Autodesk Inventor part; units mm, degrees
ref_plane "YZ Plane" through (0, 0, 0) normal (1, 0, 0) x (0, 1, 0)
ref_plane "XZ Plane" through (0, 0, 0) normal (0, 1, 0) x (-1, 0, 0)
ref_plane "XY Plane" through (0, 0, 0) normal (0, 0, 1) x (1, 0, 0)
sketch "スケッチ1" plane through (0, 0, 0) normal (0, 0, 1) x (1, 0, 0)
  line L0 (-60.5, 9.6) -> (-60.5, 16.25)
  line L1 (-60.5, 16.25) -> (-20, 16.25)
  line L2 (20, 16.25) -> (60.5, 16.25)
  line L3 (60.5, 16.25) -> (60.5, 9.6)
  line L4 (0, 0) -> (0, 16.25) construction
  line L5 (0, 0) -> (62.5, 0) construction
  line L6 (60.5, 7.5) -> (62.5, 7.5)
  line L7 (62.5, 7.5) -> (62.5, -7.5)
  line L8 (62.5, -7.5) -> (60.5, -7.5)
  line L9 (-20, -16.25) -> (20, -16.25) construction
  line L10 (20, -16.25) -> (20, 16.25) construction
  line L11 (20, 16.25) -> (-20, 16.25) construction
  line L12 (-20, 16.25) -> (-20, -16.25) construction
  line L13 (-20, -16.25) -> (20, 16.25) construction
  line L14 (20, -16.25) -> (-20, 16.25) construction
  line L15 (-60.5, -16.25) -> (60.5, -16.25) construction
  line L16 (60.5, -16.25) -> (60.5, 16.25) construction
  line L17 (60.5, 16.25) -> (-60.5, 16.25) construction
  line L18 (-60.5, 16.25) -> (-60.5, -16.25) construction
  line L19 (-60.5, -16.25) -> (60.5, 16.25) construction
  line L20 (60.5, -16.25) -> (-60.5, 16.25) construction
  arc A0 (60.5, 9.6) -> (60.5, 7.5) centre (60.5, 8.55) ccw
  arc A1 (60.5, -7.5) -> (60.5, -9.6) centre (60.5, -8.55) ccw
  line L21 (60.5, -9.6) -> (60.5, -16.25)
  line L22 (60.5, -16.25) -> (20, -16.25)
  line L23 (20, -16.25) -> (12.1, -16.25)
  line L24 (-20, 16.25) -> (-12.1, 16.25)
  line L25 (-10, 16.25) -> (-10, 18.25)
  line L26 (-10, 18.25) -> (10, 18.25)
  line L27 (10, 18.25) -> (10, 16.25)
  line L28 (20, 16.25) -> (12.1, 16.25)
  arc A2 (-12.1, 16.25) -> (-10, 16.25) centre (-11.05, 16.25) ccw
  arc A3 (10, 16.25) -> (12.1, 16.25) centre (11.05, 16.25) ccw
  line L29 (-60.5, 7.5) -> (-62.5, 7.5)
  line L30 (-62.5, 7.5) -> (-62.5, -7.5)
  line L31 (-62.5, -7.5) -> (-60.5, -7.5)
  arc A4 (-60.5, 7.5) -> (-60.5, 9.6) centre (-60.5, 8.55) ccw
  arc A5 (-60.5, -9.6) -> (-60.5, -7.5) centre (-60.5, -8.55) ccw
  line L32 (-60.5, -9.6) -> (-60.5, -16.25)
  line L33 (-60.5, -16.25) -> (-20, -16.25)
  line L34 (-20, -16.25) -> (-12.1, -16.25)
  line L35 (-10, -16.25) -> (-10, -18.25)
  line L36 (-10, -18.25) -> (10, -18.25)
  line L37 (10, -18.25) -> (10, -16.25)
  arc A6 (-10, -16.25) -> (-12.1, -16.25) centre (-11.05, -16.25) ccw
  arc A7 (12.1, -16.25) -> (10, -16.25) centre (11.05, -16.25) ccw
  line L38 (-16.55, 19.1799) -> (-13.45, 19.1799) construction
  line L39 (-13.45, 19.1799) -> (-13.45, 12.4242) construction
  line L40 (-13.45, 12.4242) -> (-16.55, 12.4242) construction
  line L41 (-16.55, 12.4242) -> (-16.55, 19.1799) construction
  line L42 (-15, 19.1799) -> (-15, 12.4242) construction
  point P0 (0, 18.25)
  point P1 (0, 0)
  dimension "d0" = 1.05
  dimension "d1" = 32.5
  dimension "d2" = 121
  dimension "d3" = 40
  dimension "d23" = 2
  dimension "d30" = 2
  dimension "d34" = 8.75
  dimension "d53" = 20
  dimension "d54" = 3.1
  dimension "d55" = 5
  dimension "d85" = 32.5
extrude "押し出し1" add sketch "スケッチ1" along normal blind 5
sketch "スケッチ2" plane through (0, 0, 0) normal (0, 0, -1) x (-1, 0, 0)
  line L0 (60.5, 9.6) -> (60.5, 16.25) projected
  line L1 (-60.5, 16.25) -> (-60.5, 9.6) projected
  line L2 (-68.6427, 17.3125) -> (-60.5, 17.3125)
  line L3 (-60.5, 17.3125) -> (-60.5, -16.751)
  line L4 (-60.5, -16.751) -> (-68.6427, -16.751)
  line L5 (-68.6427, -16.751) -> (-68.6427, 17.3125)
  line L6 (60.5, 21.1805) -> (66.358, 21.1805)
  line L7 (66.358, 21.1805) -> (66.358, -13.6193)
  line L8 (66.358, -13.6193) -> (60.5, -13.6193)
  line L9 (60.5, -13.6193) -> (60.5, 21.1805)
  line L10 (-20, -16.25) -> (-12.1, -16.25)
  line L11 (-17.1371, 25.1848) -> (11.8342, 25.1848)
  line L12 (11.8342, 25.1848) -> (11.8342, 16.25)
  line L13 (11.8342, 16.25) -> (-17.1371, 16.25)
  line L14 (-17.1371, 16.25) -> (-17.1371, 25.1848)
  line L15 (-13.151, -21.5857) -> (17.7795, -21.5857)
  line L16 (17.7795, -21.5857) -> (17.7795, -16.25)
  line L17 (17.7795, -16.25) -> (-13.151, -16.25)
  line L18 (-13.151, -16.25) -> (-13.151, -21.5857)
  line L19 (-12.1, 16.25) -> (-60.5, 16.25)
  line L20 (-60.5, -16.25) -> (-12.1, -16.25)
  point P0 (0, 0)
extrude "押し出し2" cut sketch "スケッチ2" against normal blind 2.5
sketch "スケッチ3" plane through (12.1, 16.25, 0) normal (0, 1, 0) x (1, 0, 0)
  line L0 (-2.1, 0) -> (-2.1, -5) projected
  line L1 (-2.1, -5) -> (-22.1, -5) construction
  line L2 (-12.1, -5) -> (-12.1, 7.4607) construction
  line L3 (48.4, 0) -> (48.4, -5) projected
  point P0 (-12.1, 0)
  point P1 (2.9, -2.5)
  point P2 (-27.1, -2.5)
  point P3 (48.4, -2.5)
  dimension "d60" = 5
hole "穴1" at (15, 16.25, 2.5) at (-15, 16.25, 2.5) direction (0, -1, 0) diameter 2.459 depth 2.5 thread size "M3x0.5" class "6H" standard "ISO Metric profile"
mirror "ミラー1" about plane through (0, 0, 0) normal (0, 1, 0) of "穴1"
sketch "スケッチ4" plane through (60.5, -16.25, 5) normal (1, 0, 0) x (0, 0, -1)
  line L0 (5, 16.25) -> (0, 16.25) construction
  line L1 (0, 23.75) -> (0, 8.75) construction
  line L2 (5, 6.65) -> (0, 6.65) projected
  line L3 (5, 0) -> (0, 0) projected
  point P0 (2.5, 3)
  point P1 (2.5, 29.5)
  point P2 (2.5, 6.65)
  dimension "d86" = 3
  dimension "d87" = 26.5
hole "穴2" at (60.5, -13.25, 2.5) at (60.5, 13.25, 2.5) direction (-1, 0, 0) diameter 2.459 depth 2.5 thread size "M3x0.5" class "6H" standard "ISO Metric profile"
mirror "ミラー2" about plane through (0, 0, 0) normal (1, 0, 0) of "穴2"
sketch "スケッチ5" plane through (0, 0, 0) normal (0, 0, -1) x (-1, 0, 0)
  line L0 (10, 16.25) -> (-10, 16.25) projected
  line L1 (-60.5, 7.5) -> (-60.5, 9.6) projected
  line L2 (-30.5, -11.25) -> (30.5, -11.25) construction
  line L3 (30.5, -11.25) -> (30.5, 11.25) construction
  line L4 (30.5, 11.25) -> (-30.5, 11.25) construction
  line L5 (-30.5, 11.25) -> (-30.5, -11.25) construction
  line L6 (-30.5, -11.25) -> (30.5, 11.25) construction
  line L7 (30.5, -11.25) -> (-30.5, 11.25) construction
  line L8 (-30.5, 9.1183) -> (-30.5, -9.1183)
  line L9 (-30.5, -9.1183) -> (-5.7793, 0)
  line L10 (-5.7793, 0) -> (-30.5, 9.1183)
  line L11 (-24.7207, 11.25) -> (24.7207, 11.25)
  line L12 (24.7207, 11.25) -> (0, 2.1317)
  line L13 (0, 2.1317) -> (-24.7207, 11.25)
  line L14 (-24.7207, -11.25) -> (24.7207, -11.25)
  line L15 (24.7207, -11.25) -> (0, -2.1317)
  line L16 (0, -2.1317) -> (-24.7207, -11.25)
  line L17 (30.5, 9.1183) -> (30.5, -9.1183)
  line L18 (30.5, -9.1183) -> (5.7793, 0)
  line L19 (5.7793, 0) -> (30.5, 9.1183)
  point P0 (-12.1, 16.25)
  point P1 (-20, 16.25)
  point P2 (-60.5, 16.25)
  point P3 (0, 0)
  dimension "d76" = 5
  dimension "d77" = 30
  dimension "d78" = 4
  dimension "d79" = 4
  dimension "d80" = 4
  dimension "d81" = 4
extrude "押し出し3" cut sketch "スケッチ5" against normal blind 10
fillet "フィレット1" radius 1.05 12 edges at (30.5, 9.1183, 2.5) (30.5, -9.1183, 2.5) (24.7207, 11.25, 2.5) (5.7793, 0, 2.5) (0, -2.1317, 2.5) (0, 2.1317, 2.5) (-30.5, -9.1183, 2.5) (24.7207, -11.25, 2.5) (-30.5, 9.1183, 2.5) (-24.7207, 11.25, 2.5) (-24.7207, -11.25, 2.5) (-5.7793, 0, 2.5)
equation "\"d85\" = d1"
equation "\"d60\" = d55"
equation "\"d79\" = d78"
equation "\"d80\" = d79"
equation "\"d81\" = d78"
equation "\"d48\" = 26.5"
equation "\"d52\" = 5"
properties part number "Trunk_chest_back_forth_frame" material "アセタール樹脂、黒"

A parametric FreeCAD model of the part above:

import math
import FreeCAD as App
import Part
import Sketcher
Q = App.Units.Quantity


def edges_at(feature, points):
    """Names of the edges that pass closest to the given points."""
    edges = feature.Shape.Edges
    near = lambda p: min(range(len(edges)), key=lambda i: edges[i].distToShape(Part.Vertex(*p))[0])
    return sorted({f"Edge{near(p) + 1}" for p in points})

doc = App.newDocument("Part")
body = doc.addObject("PartDesign::Body", "Body")

# Sketch on XY plane
sketch1 = body.newObject("Sketcher::SketchObject", "Sketch")
sketch1.AttachmentSupport = (doc.getObject("XY_Plane"), [""])
sketch1.MapMode = "FlatFace"
sketch1.addGeometry([
    Part.LineSegment(App.Vector(-60.5, 16.2, 0), App.Vector(-60.5, 9.6, 0)),  # 0
    Part.ArcOfCircle(Part.Circle(App.Vector(-60.5, 8.6, 0), App.Vector(0, 0, 1), 1.1), math.radians(-90), math.radians(90)),  # 1
    Part.LineSegment(App.Vector(-60.5, 7.5, 0), App.Vector(-62.5, 7.5, 0)),  # 2
    Part.LineSegment(App.Vector(-62.5, 7.5, 0), App.Vector(-62.5, -7.5, 0)),  # 3
    Part.LineSegment(App.Vector(-62.5, -7.5, 0), App.Vector(-60.5, -7.5, 0)),  # 4
    Part.ArcOfCircle(Part.Circle(App.Vector(-60.5, -8.6, 0), App.Vector(0, 0, 1), 1), math.radians(-90), math.radians(90)),  # 5
    Part.LineSegment(App.Vector(-60.5, -9.6, 0), App.Vector(-60.5, -16.2, 0)),  # 6
    Part.LineSegment(App.Vector(-60.5, -16.2, 0), App.Vector(-12.1, -16.2, 0)),  # 7
    Part.ArcOfCircle(Part.Circle(App.Vector(-11.1, -16.2, 0), App.Vector(0, 0, 1), 1.1), math.radians(0), math.radians(180)),  # 8
    Part.LineSegment(App.Vector(-10, -16.2, 0), App.Vector(-10, -18.2, 0)),  # 9
    Part.LineSegment(App.Vector(-10, -18.2, 0), App.Vector(10, -18.2, 0)),  # 10
    Part.LineSegment(App.Vector(10, -18.2, 0), App.Vector(10, -16.2, 0)),  # 11
    Part.ArcOfCircle(Part.Circle(App.Vector(11.1, -16.2, 0), App.Vector(0, 0, 1), 1), math.radians(0), math.radians(180)),  # 12
    Part.LineSegment(App.Vector(12.1, -16.2, 0), App.Vector(60.5, -16.2, 0)),  # 13
    Part.LineSegment(App.Vector(60.5, -16.2, 0), App.Vector(60.5, -9.6, 0)),  # 14
    Part.ArcOfCircle(Part.Circle(App.Vector(60.5, -8.6, 0), App.Vector(0, 0, 1), 1.1), math.radians(90), math.radians(270)),  # 15
    Part.LineSegment(App.Vector(60.5, -7.5, 0), App.Vector(62.5, -7.5, 0)),  # 16
    Part.LineSegment(App.Vector(62.5, -7.5, 0), App.Vector(62.5, 7.5, 0)),  # 17
    Part.LineSegment(App.Vector(62.5, 7.5, 0), App.Vector(60.5, 7.5, 0)),  # 18
    Part.ArcOfCircle(Part.Circle(App.Vector(60.5, 8.6, 0), App.Vector(0, 0, 1), 1), math.radians(90), math.radians(270)),  # 19
    Part.LineSegment(App.Vector(60.5, 9.6, 0), App.Vector(60.5, 16.2, 0)),  # 20
    Part.LineSegment(App.Vector(60.5, 16.2, 0), App.Vector(12.1, 16.2, 0)),  # 21
    Part.ArcOfCircle(Part.Circle(App.Vector(11.1, 16.2, 0), App.Vector(0, 0, 1), 1.1), math.radians(180), math.radians(360)),  # 22
    Part.LineSegment(App.Vector(10, 16.2, 0), App.Vector(10, 18.2, 0)),  # 23
    Part.LineSegment(App.Vector(10, 18.2, 0), App.Vector(-10, 18.2, 0)),  # 24
    Part.LineSegment(App.Vector(-10, 18.2, 0), App.Vector(-10, 16.2, 0)),  # 25
    Part.ArcOfCircle(Part.Circle(App.Vector(-11.1, 16.2, 0), App.Vector(0, 0, 1), 1), math.radians(180), math.radians(360)),  # 26
    Part.LineSegment(App.Vector(-12.1, 16.2, 0), App.Vector(-60.5, 16.2, 0)),  # 27
], False)
sketch1.addConstraint([
    Sketcher.Constraint("Coincident", 0, 2, 1, 2),
    Sketcher.Constraint("Tangent", 1, 1, 2, 1),
    Sketcher.Constraint("Coincident", 2, 2, 3, 1),
    Sketcher.Constraint("Coincident", 3, 2, 4, 1),
    Sketcher.Constraint("Tangent", 4, 2, 5, 2),
    Sketcher.Constraint("Coincident", 5, 1, 6, 1),
    Sketcher.Constraint("Coincident", 6, 2, 7, 1),
    Sketcher.Constraint("Coincident", 7, 2, 8, 2),
    Sketcher.Constraint("Tangent", 8, 1, 9, 1),
    Sketcher.Constraint("Coincident", 9, 2, 10, 1),
    Sketcher.Constraint("Coincident", 10, 2, 11, 1),
    Sketcher.Constraint("Tangent", 11, 2, 12, 2),
    Sketcher.Constraint("Coincident", 12, 1, 13, 1),
    Sketcher.Constraint("Coincident", 13, 2, 14, 1),
    Sketcher.Constraint("Coincident", 14, 2, 15, 2),
    Sketcher.Constraint("Tangent", 15, 1, 16, 1),
    Sketcher.Constraint("Coincident", 16, 2, 17, 1),
    Sketcher.Constraint("Coincident", 17, 2, 18, 1),
    Sketcher.Constraint("Tangent", 18, 2, 19, 2),
    Sketcher.Constraint("Coincident", 19, 1, 20, 1),
    Sketcher.Constraint("Coincident", 20, 2, 21, 1),
    Sketcher.Constraint("Coincident", 21, 2, 22, 2),
    Sketcher.Constraint("Tangent", 22, 1, 23, 1),
    Sketcher.Constraint("Coincident", 23, 2, 24, 1),
    Sketcher.Constraint("Coincident", 24, 2, 25, 1),
    Sketcher.Constraint("Tangent", 25, 2, 26, 2),
    Sketcher.Constraint("Coincident", 26, 1, 27, 1),
    Sketcher.Constraint("Coincident", 27, 2, 0, 1),
    Sketcher.Constraint("Vertical", 0),
    Sketcher.Constraint("Horizontal", 2),
    Sketcher.Constraint("Vertical", 3),
    Sketcher.Constraint("Horizontal", 4),
    Sketcher.Constraint("Vertical", 6),
    Sketcher.Constraint("Horizontal", 7),
    Sketcher.Constraint("Vertical", 9),
    Sketcher.Constraint("Horizontal", 10),
    Sketcher.Constraint("Vertical", 11),
    Sketcher.Constraint("Horizontal", 13),
    Sketcher.Constraint("Vertical", 14),
    Sketcher.Constraint("Horizontal", 16),
    Sketcher.Constraint("Vertical", 17),
    Sketcher.Constraint("Horizontal", 18),
    Sketcher.Constraint("Vertical", 20),
    Sketcher.Constraint("Horizontal", 21),
    Sketcher.Constraint("Vertical", 23),
    Sketcher.Constraint("Horizontal", 24),
    Sketcher.Constraint("Vertical", 25),
    Sketcher.Constraint("Horizontal", 27),
    Sketcher.Constraint("Equal", 1, 5),
    Sketcher.Constraint("Equal", 5, 8),
    Sketcher.Constraint("Equal", 8, 12),
    Sketcher.Constraint("Equal", 12, 15),
    Sketcher.Constraint("Equal", 15, 19),
    Sketcher.Constraint("Equal", 19, 22),
    Sketcher.Constraint("Equal", 22, 26),
    Sketcher.Constraint("Symmetric", 1, 3, 15, 3, -1, 1),
    Sketcher.Constraint("Symmetric", 5, 3, 19, 3, -1, 1),
    Sketcher.Constraint("Symmetric", 8, 3, 22, 3, -1, 1),
    Sketcher.Constraint("Symmetric", 12, 3, 26, 3, -1, 1),
    Sketcher.Constraint("Symmetric", 6, 2, 20, 2, -1, 1),
    Sketcher.Constraint("Symmetric", 13, 2, 27, 2, -1, 1),
    Sketcher.Constraint("Symmetric", 8, 3, 12, 3, -2),
    Sketcher.Constraint("Symmetric", 5, 3, 15, 3, -2),
    Sketcher.Constraint("Symmetric", 6, 2, 13, 2, -2),
    Sketcher.Constraint("Horizontal", 12, 3, 6, 2),
    Sketcher.Constraint("Vertical", 5, 3, 0, 2),
    Sketcher.Constraint("Equal", 4, 16),
    Sketcher.Constraint("Equal", 18, 9),
    Sketcher.Constraint("Equal", 11, 23),
    Sketcher.Constraint("DistanceX", 2, 2, 2, 1, Q("2 mm")),
    Sketcher.Constraint("DistanceX", 10, 1, 10, 2, Q("20 mm")),
    Sketcher.Constraint("Radius", 1, Q("1.05 mm")),
    Sketcher.Constraint("DistanceX", 5, 3, 15, 3, Q("121 mm")),
    Sketcher.Constraint("DistanceY", 12, 3, 22, 3, Q("32.5 mm")),
    Sketcher.Constraint("DistanceY", 3, 2, 3, 1, Q("15 mm")),
])
pad1 = body.newObject("PartDesign::Pad", "Pad")
pad1.Profile = sketch1
pad1.Length = 5

# Sketch on XY plane
sketch2 = body.newObject("Sketcher::SketchObject", "Sketch001")
sketch2.AttachmentSupport = (doc.getObject("XY_Plane"), [""])
sketch2.MapMode = "FlatFace"
sketch2.addGeometry([
    Part.LineSegment(App.Vector(-60, 21, 0), App.Vector(-60, -14, 0)),  # 0
    Part.LineSegment(App.Vector(-60, -14, 0), App.Vector(-66, -14, 0)),  # 1
    Part.LineSegment(App.Vector(-66, -14, 0), App.Vector(-66, 21, 0)),  # 2
    Part.LineSegment(App.Vector(-66, 21, 0), App.Vector(-60, 21, 0)),  # 3
    Part.LineSegment(App.Vector(-18, -16, 0), App.Vector(13, -16, 0)),  # 4
    Part.LineSegment(App.Vector(13, -16, 0), App.Vector(13, -22, 0)),  # 5
    Part.LineSegment(App.Vector(13, -22, 0), App.Vector(-18, -22, 0)),  # 6
    Part.LineSegment(App.Vector(-18, -22, 0), App.Vector(-18, -16, 0)),  # 7
    Part.LineSegment(App.Vector(60, -17, 0), App.Vector(60, 17, 0)),  # 8
    Part.LineSegment(App.Vector(60, 17, 0), App.Vector(69, 17, 0)),  # 9
    Part.LineSegment(App.Vector(69, 17, 0), App.Vector(69, -17, 0)),  # 10
    Part.LineSegment(App.Vector(69, -17, 0), App.Vector(60, -17, 0)),  # 11
    Part.LineSegment(App.Vector(17, 25, 0), App.Vector(17, 16, 0)),  # 12
    Part.LineSegment(App.Vector(17, 16, 0), App.Vector(-12, 16, 0)),  # 13
    Part.LineSegment(App.Vector(-12, 16, 0), App.Vector(-12, 25, 0)),  # 14
    Part.LineSegment(App.Vector(-12, 25, 0), App.Vector(17, 25, 0)),  # 15
], False)
sketch2.addConstraint([
    Sketcher.Constraint("Coincident", 0, 2, 1, 1),
    Sketcher.Constraint("Coincident", 1, 2, 2, 1),
    Sketcher.Constraint("Coincident", 2, 2, 3, 1),
    Sketcher.Constraint("Coincident", 3, 2, 0, 1),
    Sketcher.Constraint("Coincident", 4, 2, 5, 1),
    Sketcher.Constraint("Coincident", 5, 2, 6, 1),
    Sketcher.Constraint("Coincident", 6, 2, 7, 1),
    Sketcher.Constraint("Coincident", 7, 2, 4, 1),
    Sketcher.Constraint("Coincident", 8, 2, 9, 1),
    Sketcher.Constraint("Coincident", 9, 2, 10, 1),
    Sketcher.Constraint("Coincident", 10, 2, 11, 1),
    Sketcher.Constraint("Coincident", 11, 2, 8, 1),
    Sketcher.Constraint("Coincident", 12, 2, 13, 1),
    Sketcher.Constraint("Coincident", 13, 2, 14, 1),
    Sketcher.Constraint("Coincident", 14, 2, 15, 1),
    Sketcher.Constraint("Coincident", 15, 2, 12, 1),
    Sketcher.Constraint("Vertical", 0),
    Sketcher.Constraint("Horizontal", 1),
    Sketcher.Constraint("Vertical", 2),
    Sketcher.Constraint("Horizontal", 3),
    Sketcher.Constraint("Horizontal", 4),
    Sketcher.Constraint("Vertical", 5),
    Sketcher.Constraint("Horizontal", 6),
    Sketcher.Constraint("Vertical", 7),
    Sketcher.Constraint("Vertical", 8),
    Sketcher.Constraint("Horizontal", 9),
    Sketcher.Constraint("Vertical", 10),
    Sketcher.Constraint("Horizontal", 11),
    Sketcher.Constraint("Vertical", 12),
    Sketcher.Constraint("Horizontal", 13),
    Sketcher.Constraint("Vertical", 14),
    Sketcher.Constraint("Horizontal", 15),
    Sketcher.Constraint("DistanceX", 3, 2, 8, 2, Q("121 mm")),
    Sketcher.Constraint("DistanceX", 0, 2, -1, 1, Q("60.5 mm")),
    Sketcher.Constraint("DistanceY", 4, 2, 12, 2, Q("32.5 mm")),
    Sketcher.Constraint("DistanceX", 1, 2, 1, 1, Q("5.858 mm")),
    Sketcher.Constraint("DistanceY", 4, 2, -1, 1, Q("16.25 mm")),
    Sketcher.Constraint("DistanceX", 4, 1, 4, 2, Q("30.9305 mm")),
    Sketcher.Constraint("DistanceX", 9, 1, 9, 2, Q("8.1427 mm")),
    Sketcher.Constraint("DistanceX", 13, 2, 13, 1, Q("28.9713 mm")),
    Sketcher.Constraint("DistanceY", 0, 2, 0, 1, Q("34.7998 mm")),
    Sketcher.Constraint("DistanceY", 5, 2, 5, 1, Q("5.3357 mm")),
    Sketcher.Constraint("DistanceY", 8, 1, 8, 2, Q("34.0635 mm")),
    Sketcher.Constraint("DistanceY", 12, 2, 12, 1, Q("8.9348 mm")),
    Sketcher.Constraint("DistanceX", -1, 1, 4, 2, Q("13.151 mm")),
    Sketcher.Constraint("DistanceY", 10, 2, -1, 1, Q("16.751 mm")),
    Sketcher.Constraint("DistanceX", -1, 1, 12, 2, Q("17.137 mm")),
    Sketcher.Constraint("DistanceY", 8, 2, 3, 2, Q("3.868 mm")),
])
pocket1 = body.newObject("PartDesign::Pocket", "Pocket")
pocket1.Profile = sketch2
pocket1.Length = 2.5
pocket1.Reversed = True

# Sketch on XZ plane
sketch3 = body.newObject("Sketcher::SketchObject", "Sketch002")
sketch3.AttachmentSupport = (doc.getObject("XZ_Plane"), [""])
sketch3.MapMode = "FlatFace"
sketch3.AttachmentOffset = App.Placement(App.Vector(0, 0, -16.25), App.Rotation())
sketch3.addGeometry([
    Part.Circle(App.Vector(15, 2.5, 0), App.Vector(0, 0, 1), 1.2),
    Part.Circle(App.Vector(-15, 2.5, 0), App.Vector(0, 0, 1), 1.2),
], False)
sketch3.addConstraint([
    Sketcher.Constraint("Equal", 0, 1),
    Sketcher.Constraint("Symmetric", 0, 3, 1, 3, -2),
    Sketcher.Constraint("Diameter", 0, Q("2.459 mm")),
    Sketcher.Constraint("DistanceX", -1, 1, 0, 3, Q("15 mm")),
    Sketcher.Constraint("DistanceY", -1, 1, 0, 3, Q("2.5 mm")),
])
doc.recompute()
hole = body.newObject("PartDesign::Hole", "Hole")
hole.Profile = sketch3
hole.ThreadType = "None"
hole.Diameter = 2.459
hole.DepthType = "Dimension"
hole.Depth = 2.5
hole.DrillPoint = "Flat"
hole.Reversed = True
doc.recompute()

mirrored = body.newObject("PartDesign::Mirrored", "Mirrored")
mirrored.Originals = [hole]
mirrored.MirrorPlane = (doc.getObject("XZ_Plane"), [""])
body.Tip = mirrored

# Sketch on YZ plane
sketch4 = body.newObject("Sketcher::SketchObject", "Sketch003")
sketch4.AttachmentSupport = (doc.getObject("YZ_Plane"), [""])
sketch4.MapMode = "FlatFace"
sketch4.AttachmentOffset = App.Placement(App.Vector(0, 0, 60.5), App.Rotation())
sketch4.addGeometry([
    Part.Circle(App.Vector(-13.2, 2.5, 0), App.Vector(0, 0, 1), 1.2),
    Part.Circle(App.Vector(13.2, 2.5, 0), App.Vector(0, 0, 1), 1.2),
], False)
sketch4.addConstraint([
    Sketcher.Constraint("Equal", 0, 1),
    Sketcher.Constraint("Symmetric", 0, 3, 1, 3, -2),
    Sketcher.Constraint("Diameter", 0, Q("2.459 mm")),
    Sketcher.Constraint("DistanceY", -1, 1, 0, 3, Q("2.5 mm")),
    Sketcher.Constraint("DistanceX", 0, 3, 1, 3, Q("26.5 mm")),
])
doc.recompute()
hole2 = body.newObject("PartDesign::Hole", "Hole001")
hole2.Profile = sketch4
hole2.ThreadType = "None"
hole2.Diameter = 2.459
hole2.DepthType = "Dimension"
hole2.Depth = 2.5
hole2.DrillPoint = "Flat"
doc.recompute()

mirrored2 = body.newObject("PartDesign::Mirrored", "Mirrored001")
mirrored2.Originals = [hole2]
mirrored2.MirrorPlane = (doc.getObject("YZ_Plane"), [""])
body.Tip = mirrored2

# Sketch on XY plane
sketch5 = body.newObject("Sketcher::SketchObject", "Sketch004")
sketch5.AttachmentSupport = (doc.getObject("XY_Plane"), [""])
sketch5.MapMode = "FlatFace"
sketch5.addGeometry([
    Part.LineSegment(App.Vector(6, 0, 0), App.Vector(30, 9, 0)),  # 0
    Part.LineSegment(App.Vector(30, 9, 0), App.Vector(30, -9, 0)),  # 1
    Part.LineSegment(App.Vector(30, -9, 0), App.Vector(6, 0, 0)),  # 2
    Part.LineSegment(App.Vector(-25, 11, 0), App.Vector(25, 11, 0)),  # 3
    Part.LineSegment(App.Vector(25, 11, 0), App.Vector(0, 2, 0)),  # 4
    Part.LineSegment(App.Vector(0, 2, 0), App.Vector(-25, 11, 0)),  # 5
    Part.LineSegment(App.Vector(0, -2, 0), App.Vector(25, -11, 0)),  # 6
    Part.LineSegment(App.Vector(25, -11, 0), App.Vector(-25, -11, 0)),  # 7
    Part.LineSegment(App.Vector(-25, -11, 0), App.Vector(0, -2, 0)),  # 8
    Part.LineSegment(App.Vector(-30, -9, 0), App.Vector(-30, 9, 0)),  # 9
    Part.LineSegment(App.Vector(-30, 9, 0), App.Vector(-6, 0, 0)),  # 10
    Part.LineSegment(App.Vector(-6, 0, 0), App.Vector(-30, -9, 0)),  # 11
], False)
sketch5.addConstraint([
    Sketcher.Constraint("Coincident", 0, 2, 1, 1),
    Sketcher.Constraint("Coincident", 1, 2, 2, 1),
    Sketcher.Constraint("Coincident", 2, 2, 0, 1),
    Sketcher.Constraint("Coincident", 3, 2, 4, 1),
    Sketcher.Constraint("Coincident", 4, 2, 5, 1),
    Sketcher.Constraint("Coincident", 5, 2, 3, 1),
    Sketcher.Constraint("Coincident", 6, 2, 7, 1),
    Sketcher.Constraint("Coincident", 7, 2, 8, 1),
    Sketcher.Constraint("Coincident", 8, 2, 6, 1),
    Sketcher.Constraint("Coincident", 9, 2, 10, 1),
    Sketcher.Constraint("Coincident", 10, 2, 11, 1),
    Sketcher.Constraint("Coincident", 11, 2, 9, 1),
    Sketcher.Constraint("Vertical", 1),
    Sketcher.Constraint("Horizontal", 3),
    Sketcher.Constraint("Horizontal", 7),
    Sketcher.Constraint("Vertical", 9),
    Sketcher.Constraint("Symmetric", 5, 2, 6, 2, -1, 1),
    Sketcher.Constraint("Symmetric", 4, 2, 8, 2, -1, 1),
    Sketcher.Constraint("Symmetric", 1, 2, 9, 2, -1, 1),
    Sketcher.Constraint("Symmetric", 2, 2, 10, 2, -1, 1),
    Sketcher.Constraint("PointOnObject", 2, 2, -1),
    Sketcher.Constraint("PointOnObject", 4, 2, -2),
    Sketcher.Constraint("Parallel", 0, 4),
    Sketcher.Constraint("Parallel", 2, 5),
    Sketcher.Constraint("Parallel", 4, 8),
    Sketcher.Constraint("Parallel", 8, 11),
    Sketcher.Constraint("Horizontal", 0, 2, 9, 2),
    Sketcher.Constraint("Equal", 2, 4),
    Sketcher.Constraint("DistanceX", -1, 1, 0, 2, Q("30.5 mm")),
    Sketcher.Constraint("DistanceY", 6, 2, 3, 2, Q("22.5 mm")),
    Sketcher.Constraint("DistanceX", 3, 1, 3, 2, Q("49.4414 mm")),
    Sketcher.Constraint("DistanceY", 1, 2, 1, 1, Q("18.2366 mm")),
])
pocket2 = body.newObject("PartDesign::Pocket", "Pocket001")
pocket2.Profile = sketch5
pocket2.Length = 10
pocket2.Reversed = True
doc.recompute()

fillet = body.newObject("PartDesign::Fillet", "Fillet")
fillet.Base = (pocket2, edges_at(pocket2, [
    (30.5, 9.118, 2.5),
    (30.5, -9.118, 2.5),
    (24.721, 11.25, 2.5),
    (5.779, 0, 2.5),
    (0, -2.132, 2.5),
    (0, 2.132, 2.5),
    (-30.5, -9.118, 2.5),
    (24.721, -11.25, 2.5),
    (-30.5, 9.118, 2.5),
    (-24.721, 11.25, 2.5),
    (-24.721, -11.25, 2.5),
    (-5.779, 0, 2.5),
]))
fillet.Radius = 1.05

doc.recompute()
